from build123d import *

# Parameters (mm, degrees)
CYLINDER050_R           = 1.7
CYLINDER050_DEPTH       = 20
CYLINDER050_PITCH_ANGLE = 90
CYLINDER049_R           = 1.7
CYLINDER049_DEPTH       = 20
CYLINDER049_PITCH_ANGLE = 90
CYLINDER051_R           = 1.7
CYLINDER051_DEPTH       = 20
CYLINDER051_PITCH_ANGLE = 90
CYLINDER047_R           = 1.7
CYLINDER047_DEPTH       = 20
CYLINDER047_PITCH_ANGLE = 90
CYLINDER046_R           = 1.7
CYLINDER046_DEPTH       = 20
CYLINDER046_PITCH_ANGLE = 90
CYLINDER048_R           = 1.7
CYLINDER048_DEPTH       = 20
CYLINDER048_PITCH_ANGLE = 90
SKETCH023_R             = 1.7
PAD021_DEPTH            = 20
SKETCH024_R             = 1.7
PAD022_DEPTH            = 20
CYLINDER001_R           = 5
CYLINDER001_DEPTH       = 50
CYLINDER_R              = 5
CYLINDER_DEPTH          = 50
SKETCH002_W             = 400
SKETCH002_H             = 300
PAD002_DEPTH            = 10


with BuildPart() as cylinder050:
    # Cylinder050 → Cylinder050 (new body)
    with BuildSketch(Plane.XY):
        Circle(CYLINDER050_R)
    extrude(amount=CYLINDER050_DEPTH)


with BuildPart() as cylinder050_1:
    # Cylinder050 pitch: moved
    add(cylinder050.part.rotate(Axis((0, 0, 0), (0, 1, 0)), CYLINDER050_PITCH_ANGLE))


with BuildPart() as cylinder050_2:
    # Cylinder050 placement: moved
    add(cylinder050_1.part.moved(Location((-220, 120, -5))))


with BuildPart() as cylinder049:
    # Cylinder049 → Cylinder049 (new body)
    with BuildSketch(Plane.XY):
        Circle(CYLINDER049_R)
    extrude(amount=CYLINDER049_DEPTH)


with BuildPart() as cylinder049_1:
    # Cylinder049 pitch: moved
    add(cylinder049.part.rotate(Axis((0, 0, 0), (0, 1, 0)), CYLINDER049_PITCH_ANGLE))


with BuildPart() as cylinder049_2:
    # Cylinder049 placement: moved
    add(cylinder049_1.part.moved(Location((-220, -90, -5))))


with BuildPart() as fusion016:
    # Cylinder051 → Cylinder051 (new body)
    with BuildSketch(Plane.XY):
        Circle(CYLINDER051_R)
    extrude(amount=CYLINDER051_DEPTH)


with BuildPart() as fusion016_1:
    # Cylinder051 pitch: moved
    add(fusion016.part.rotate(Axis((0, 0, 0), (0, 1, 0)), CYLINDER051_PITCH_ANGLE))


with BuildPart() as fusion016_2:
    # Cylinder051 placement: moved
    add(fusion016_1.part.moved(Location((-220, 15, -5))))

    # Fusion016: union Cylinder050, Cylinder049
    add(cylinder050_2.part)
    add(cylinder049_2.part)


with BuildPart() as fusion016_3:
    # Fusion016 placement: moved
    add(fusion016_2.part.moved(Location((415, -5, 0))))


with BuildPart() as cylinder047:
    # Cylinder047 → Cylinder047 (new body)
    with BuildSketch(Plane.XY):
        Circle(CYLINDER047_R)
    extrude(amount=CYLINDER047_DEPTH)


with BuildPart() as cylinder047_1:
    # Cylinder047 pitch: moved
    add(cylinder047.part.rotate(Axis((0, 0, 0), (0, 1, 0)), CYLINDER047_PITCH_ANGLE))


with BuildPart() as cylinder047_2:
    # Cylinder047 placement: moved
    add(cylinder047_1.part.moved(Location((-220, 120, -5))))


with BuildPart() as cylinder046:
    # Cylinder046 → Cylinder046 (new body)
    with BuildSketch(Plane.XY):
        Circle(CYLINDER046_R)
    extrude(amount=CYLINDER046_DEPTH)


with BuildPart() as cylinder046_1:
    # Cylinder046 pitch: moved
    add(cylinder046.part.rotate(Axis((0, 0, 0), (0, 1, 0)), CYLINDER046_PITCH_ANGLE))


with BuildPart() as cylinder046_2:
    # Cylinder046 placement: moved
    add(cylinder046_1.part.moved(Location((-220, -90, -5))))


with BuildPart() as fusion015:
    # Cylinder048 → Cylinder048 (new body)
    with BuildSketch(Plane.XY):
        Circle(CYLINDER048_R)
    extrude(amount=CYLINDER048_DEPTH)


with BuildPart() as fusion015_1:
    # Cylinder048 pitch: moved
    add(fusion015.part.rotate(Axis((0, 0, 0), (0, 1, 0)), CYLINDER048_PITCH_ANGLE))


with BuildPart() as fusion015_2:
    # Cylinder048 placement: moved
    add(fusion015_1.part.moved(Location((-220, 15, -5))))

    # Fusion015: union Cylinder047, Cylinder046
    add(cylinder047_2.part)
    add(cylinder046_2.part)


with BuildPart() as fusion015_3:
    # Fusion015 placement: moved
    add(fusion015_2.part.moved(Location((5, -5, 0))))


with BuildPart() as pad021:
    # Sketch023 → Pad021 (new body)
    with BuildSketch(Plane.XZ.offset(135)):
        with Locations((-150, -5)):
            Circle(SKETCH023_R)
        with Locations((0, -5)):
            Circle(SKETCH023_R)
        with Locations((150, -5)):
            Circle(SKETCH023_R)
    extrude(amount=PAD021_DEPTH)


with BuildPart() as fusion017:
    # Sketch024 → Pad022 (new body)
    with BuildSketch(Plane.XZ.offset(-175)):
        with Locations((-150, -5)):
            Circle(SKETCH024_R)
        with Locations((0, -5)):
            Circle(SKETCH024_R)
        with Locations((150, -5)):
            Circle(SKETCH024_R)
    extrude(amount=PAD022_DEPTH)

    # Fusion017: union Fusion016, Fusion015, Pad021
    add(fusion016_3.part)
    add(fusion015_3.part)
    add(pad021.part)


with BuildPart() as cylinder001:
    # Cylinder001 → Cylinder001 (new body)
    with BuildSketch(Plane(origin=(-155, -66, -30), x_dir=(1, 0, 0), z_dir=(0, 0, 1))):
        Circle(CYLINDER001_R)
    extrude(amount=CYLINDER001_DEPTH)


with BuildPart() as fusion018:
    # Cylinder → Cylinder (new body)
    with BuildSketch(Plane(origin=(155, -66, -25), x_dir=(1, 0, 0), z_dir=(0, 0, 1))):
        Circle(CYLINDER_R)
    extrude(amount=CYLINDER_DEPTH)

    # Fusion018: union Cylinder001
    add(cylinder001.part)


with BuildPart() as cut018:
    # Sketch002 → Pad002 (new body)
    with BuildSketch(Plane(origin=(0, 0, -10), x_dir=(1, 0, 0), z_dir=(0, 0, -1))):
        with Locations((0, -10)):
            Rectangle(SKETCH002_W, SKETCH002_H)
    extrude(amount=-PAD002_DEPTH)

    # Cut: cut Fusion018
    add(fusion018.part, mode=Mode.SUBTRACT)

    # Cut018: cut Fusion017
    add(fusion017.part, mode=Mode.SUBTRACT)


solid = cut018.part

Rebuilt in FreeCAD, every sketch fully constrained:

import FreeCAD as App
import Part
import Sketcher


def add_polygon(sketch, points):
    """Adds a closed chain of lines whose ends are joined by coincident constraints."""
    first, n = sketch.GeometryCount, len(points)
    for a, b in zip(points, points[1:] + points[:1]):
        sketch.addGeometry(Part.LineSegment(App.Vector(*a, 0), App.Vector(*b, 0)), False)
    for i in range(n):
        sketch.addConstraint(Sketcher.Constraint("Coincident", first + i, 2, first + (i + 1) % n, 1))

doc = App.newDocument("Part")
params = doc.addObject("Spreadsheet::Sheet", "Params")
for row, (alias, value) in enumerate([
    ("sketch1_diameter", "3.4 mm"),
    ("pad1_length", "20 mm"),
    ("sketch2_diameter", "3.4 mm"),
    ("pad2_length", "20 mm"),
    ("sketch3_diameter", "3.4 mm"),
    ("pad3_length", "20 mm"),
    ("sketch4_diameter", "3.4 mm"),
    ("pad4_length", "20 mm"),
    ("sketch5_diameter", "3.4 mm"),
    ("pad5_length", "20 mm"),
    ("sketch6_diameter", "3.4 mm"),
    ("pad6_length", "20 mm"),
    ("sketch7_diameter", "3.4 mm"),
    ("pad7_length", "20 mm"),
    ("sketch8_diameter", "3.4 mm"),
    ("pad8_length", "20 mm"),
    ("sketch9_diameter", "10 mm"),
    ("pad9_length", "50 mm"),
    ("sketch10_diameter", "10 mm"),
    ("pad10_length", "50 mm"),
    ("sketch11_width", "400 mm"),
    ("sketch11_height", "300 mm"),
    ("pad11_length", "10 mm"),
], start=1):
    params.set(f"A{row}", alias)
    params.set(f"B{row}", "=" + value)
    params.setAlias(f"B{row}", alias)

body = doc.addObject("PartDesign::Body", "Body")

# Sketch on XY plane
sketch1 = doc.addObject("Sketcher::SketchObject", "Sketch")
body.addObject(sketch1)
sketch1.AttachmentSupport = (doc.XY_Plane, [""])
sketch1.MapMode = "FlatFace"
sketch1.addGeometry(Part.Circle(App.Vector(0, 0, 0), App.Vector(0, 0, 1), 1.7), False)
sketch1.addConstraint([
    Sketcher.Constraint("Coincident", 0, 3, -1, 1),
    Sketcher.Constraint("Diameter", 0, 3.4),
])
sketch1.setExpression("Constraints[1]", "Params.sketch1_diameter")
pad1 = doc.addObject("PartDesign::Pad", "Pad")
body.addObject(pad1)
pad1.Profile = sketch1
pad1.setExpression("Length", "Params.pad1_length")
body2 = doc.addObject("PartDesign::Body", "Body001")
doc.recompute()

body.Placement = App.Placement(App.Vector(0, 0, 0), App.Rotation(App.Vector(0, 1, 0), 90))
boolean = doc.addObject("PartDesign::Boolean", "Boolean")
body2.addObject(boolean)
boolean.Type = "Fuse"
boolean.addObjects([body])
body3 = doc.addObject("PartDesign::Body", "Body002")
doc.recompute()

body2.Placement = App.Placement(App.Vector(-220, 120, -5), App.Rotation(App.Vector(0, 0, 1), 0))
boolean2 = doc.addObject("PartDesign::Boolean", "Boolean001")
body3.addObject(boolean2)
boolean2.Type = "Fuse"
boolean2.addObjects([body2])
body4 = doc.addObject("PartDesign::Body", "Body003")

# Sketch on XY plane
sketch2 = doc.addObject("Sketcher::SketchObject", "Sketch001")
body4.addObject(sketch2)
sketch2.AttachmentSupport = (doc.getObject("XY_Plane003"), [""])
sketch2.MapMode = "FlatFace"
sketch2.addGeometry(Part.Circle(App.Vector(0, 0, 0), App.Vector(0, 0, 1), 1.7), False)
sketch2.addConstraint([
    Sketcher.Constraint("Coincident", 0, 3, -1, 1),
    Sketcher.Constraint("Diameter", 0, 3.4),
])
sketch2.setExpression("Constraints[1]", "Params.sketch2_diameter")
pad2 = doc.addObject("PartDesign::Pad", "Pad001")
body4.addObject(pad2)
pad2.Profile = sketch2
pad2.setExpression("Length", "Params.pad2_length")
body5 = doc.addObject("PartDesign::Body", "Body004")
doc.recompute()

body4.Placement = App.Placement(App.Vector(0, 0, 0), App.Rotation(App.Vector(0, 1, 0), 90))
boolean3 = doc.addObject("PartDesign::Boolean", "Boolean002")
body5.addObject(boolean3)
boolean3.Type = "Fuse"
boolean3.addObjects([body4])
body6 = doc.addObject("PartDesign::Body", "Body005")
doc.recompute()

body5.Placement = App.Placement(App.Vector(-220, -90, -5), App.Rotation(App.Vector(0, 0, 1), 0))
boolean4 = doc.addObject("PartDesign::Boolean", "Boolean003")
body6.addObject(boolean4)
boolean4.Type = "Fuse"
boolean4.addObjects([body5])
body7 = doc.addObject("PartDesign::Body", "Body006")

# Sketch on XY plane
sketch3 = doc.addObject("Sketcher::SketchObject", "Sketch002")
body7.addObject(sketch3)
sketch3.AttachmentSupport = (doc.getObject("XY_Plane006"), [""])
sketch3.MapMode = "FlatFace"
sketch3.addGeometry(Part.Circle(App.Vector(0, 0, 0), App.Vector(0, 0, 1), 1.7), False)
sketch3.addConstraint([
    Sketcher.Constraint("Coincident", 0, 3, -1, 1),
    Sketcher.Constraint("Diameter", 0, 3.4),
])
sketch3.setExpression("Constraints[1]", "Params.sketch3_diameter")
pad3 = doc.addObject("PartDesign::Pad", "Pad002")
body7.addObject(pad3)
pad3.Profile = sketch3
pad3.setExpression("Length", "Params.pad3_length")
body8 = doc.addObject("PartDesign::Body", "Body007")
doc.recompute()

body7.Placement = App.Placement(App.Vector(0, 0, 0), App.Rotation(App.Vector(0, 1, 0), 90))
boolean5 = doc.addObject("PartDesign::Boolean", "Boolean004")
body8.addObject(boolean5)
boolean5.Type = "Fuse"
boolean5.addObjects([body7])
body9 = doc.addObject("PartDesign::Body", "Body008")
body9.AllowCompound = True
doc.recompute()

body8.Placement = App.Placement(App.Vector(-220, 15, -5), App.Rotation(App.Vector(0, 0, 1), 0))
boolean6 = doc.addObject("PartDesign::Boolean", "Boolean005")
body9.addObject(boolean6)
boolean6.Type = "Fuse"
boolean6.addObjects([body8])
doc.recompute()

boolean7 = doc.addObject("PartDesign::Boolean", "Boolean006")
body9.addObject(boolean7)
boolean7.Type = "Fuse"
boolean7.addObjects([body3])
doc.recompute()

boolean8 = doc.addObject("PartDesign::Boolean", "Boolean007")
body9.addObject(boolean8)
boolean8.Type = "Fuse"
boolean8.addObjects([body6])
body10 = doc.addObject("PartDesign::Body", "Body009")
body10.AllowCompound = True
doc.recompute()

body9.Placement = App.Placement(App.Vector(415, -5, 0), App.Rotation(App.Vector(0, 0, 1), 0))
boolean9 = doc.addObject("PartDesign::Boolean", "Boolean008")
body10.addObject(boolean9)
boolean9.Type = "Fuse"
boolean9.addObjects([body9])
body11 = doc.addObject("PartDesign::Body", "Body010")

# Sketch on XY plane
sketch4 = doc.addObject("Sketcher::SketchObject", "Sketch003")
body11.addObject(sketch4)
sketch4.AttachmentSupport = (doc.getObject("XY_Plane010"), [""])
sketch4.MapMode = "FlatFace"
sketch4.addGeometry(Part.Circle(App.Vector(0, 0, 0), App.Vector(0, 0, 1), 1.7), False)
sketch4.addConstraint([
    Sketcher.Constraint("Coincident", 0, 3, -1, 1),
    Sketcher.Constraint("Diameter", 0, 3.4),
])
sketch4.setExpression("Constraints[1]", "Params.sketch4_diameter")
pad4 = doc.addObject("PartDesign::Pad", "Pad003")
body11.addObject(pad4)
pad4.Profile = sketch4
pad4.setExpression("Length", "Params.pad4_length")
body12 = doc.addObject("PartDesign::Body", "Body011")
doc.recompute()

body11.Placement = App.Placement(App.Vector(0, 0, 0), App.Rotation(App.Vector(0, 1, 0), 90))
boolean10 = doc.addObject("PartDesign::Boolean", "Boolean009")
body12.addObject(boolean10)
boolean10.Type = "Fuse"
boolean10.addObjects([body11])
body13 = doc.addObject("PartDesign::Body", "Body012")
doc.recompute()

body12.Placement = App.Placement(App.Vector(-220, 120, -5), App.Rotation(App.Vector(0, 0, 1), 0))
boolean11 = doc.addObject("PartDesign::Boolean", "Boolean010")
body13.addObject(boolean11)
boolean11.Type = "Fuse"
boolean11.addObjects([body12])
body14 = doc.addObject("PartDesign::Body", "Body013")

# Sketch on XY plane
sketch5 = doc.addObject("Sketcher::SketchObject", "Sketch004")
body14.addObject(sketch5)
sketch5.AttachmentSupport = (doc.getObject("XY_Plane013"), [""])
sketch5.MapMode = "FlatFace"
sketch5.addGeometry(Part.Circle(App.Vector(0, 0, 0), App.Vector(0, 0, 1), 1.7), False)
sketch5.addConstraint([
    Sketcher.Constraint("Coincident", 0, 3, -1, 1),
    Sketcher.Constraint("Diameter", 0, 3.4),
])
sketch5.setExpression("Constraints[1]", "Params.sketch5_diameter")
pad5 = doc.addObject("PartDesign::Pad", "Pad004")
body14.addObject(pad5)
pad5.Profile = sketch5
pad5.setExpression("Length", "Params.pad5_length")
body15 = doc.addObject("PartDesign::Body", "Body014")
doc.recompute()

body14.Placement = App.Placement(App.Vector(0, 0, 0), App.Rotation(App.Vector(0, 1, 0), 90))
boolean12 = doc.addObject("PartDesign::Boolean", "Boolean011")
body15.addObject(boolean12)
boolean12.Type = "Fuse"
boolean12.addObjects([body14])
body16 = doc.addObject("PartDesign::Body", "Body015")
doc.recompute()

body15.Placement = App.Placement(App.Vector(-220, -90, -5), App.Rotation(App.Vector(0, 0, 1), 0))
boolean13 = doc.addObject("PartDesign::Boolean", "Boolean012")
body16.addObject(boolean13)
boolean13.Type = "Fuse"
boolean13.addObjects([body15])
body17 = doc.addObject("PartDesign::Body", "Body016")

# Sketch on XY plane
sketch6 = doc.addObject("Sketcher::SketchObject", "Sketch005")
body17.addObject(sketch6)
sketch6.AttachmentSupport = (doc.getObject("XY_Plane016"), [""])
sketch6.MapMode = "FlatFace"
sketch6.addGeometry(Part.Circle(App.Vector(0, 0, 0), App.Vector(0, 0, 1), 1.7), False)
sketch6.addConstraint([
    Sketcher.Constraint("Coincident", 0, 3, -1, 1),
    Sketcher.Constraint("Diameter", 0, 3.4),
])
sketch6.setExpression("Constraints[1]", "Params.sketch6_diameter")
pad6 = doc.addObject("PartDesign::Pad", "Pad005")
body17.addObject(pad6)
pad6.Profile = sketch6
pad6.setExpression("Length", "Params.pad6_length")
body18 = doc.addObject("PartDesign::Body", "Body017")
doc.recompute()

body17.Placement = App.Placement(App.Vector(0, 0, 0), App.Rotation(App.Vector(0, 1, 0), 90))
boolean14 = doc.addObject("PartDesign::Boolean", "Boolean013")
body18.addObject(boolean14)
boolean14.Type = "Fuse"
boolean14.addObjects([body17])
body19 = doc.addObject("PartDesign::Body", "Body018")
body19.AllowCompound = True
doc.recompute()

body18.Placement = App.Placement(App.Vector(-220, 15, -5), App.Rotation(App.Vector(0, 0, 1), 0))
boolean15 = doc.addObject("PartDesign::Boolean", "Boolean014")
body19.addObject(boolean15)
boolean15.Type = "Fuse"
boolean15.addObjects([body18])
doc.recompute()

boolean16 = doc.addObject("PartDesign::Boolean", "Boolean015")
body19.addObject(boolean16)
boolean16.Type = "Fuse"
boolean16.addObjects([body13])
doc.recompute()

boolean17 = doc.addObject("PartDesign::Boolean", "Boolean016")
body19.addObject(boolean17)
boolean17.Type = "Fuse"
boolean17.addObjects([body16])
body20 = doc.addObject("PartDesign::Body", "Body019")
body20.AllowCompound = True
doc.recompute()

body19.Placement = App.Placement(App.Vector(5, -5, 0), App.Rotation(App.Vector(0, 0, 1), 0))
boolean18 = doc.addObject("PartDesign::Boolean", "Boolean017")
body20.addObject(boolean18)
boolean18.Type = "Fuse"
boolean18.addObjects([body19])
body21 = doc.addObject("PartDesign::Body", "Body020")
body21.AllowCompound = True

# Sketch on XZ plane
sketch7 = doc.addObject("Sketcher::SketchObject", "Sketch006")
body21.addObject(sketch7)
sketch7.AttachmentSupport = (doc.getObject("XZ_Plane020"), [""])
sketch7.MapMode = "FlatFace"
sketch7.AttachmentOffset = App.Placement(App.Vector(0, 0, 135), App.Rotation())
sketch7.addGeometry([
    Part.Circle(App.Vector(-150, -5, 0), App.Vector(0, 0, 1), 1.7),
    Part.Circle(App.Vector(0, -5, 0), App.Vector(0, 0, 1), 1.7),
    Part.Circle(App.Vector(150, -5, 0), App.Vector(0, 0, 1), 1.7),
], False)
sketch7.addConstraint([
    Sketcher.Constraint("Equal", 0, 1),
    Sketcher.Constraint("Equal", 1, 2),
    Sketcher.Constraint("Symmetric", 0, 3, 2, 3, -2),
    Sketcher.Constraint("PointOnObject", 1, 3, -2),
    Sketcher.Constraint("Horizontal", 0, 3, 1, 3),
    Sketcher.Constraint("Diameter", 0, 3.4),
    Sketcher.Constraint("DistanceX", 0, 3, -1, 1, 150.0),
    Sketcher.Constraint("DistanceY", 0, 3, -1, 1, 5.0),
])
sketch7.setExpression("Constraints[5]", "Params.sketch7_diameter")
pad7 = doc.addObject("PartDesign::Pad", "Pad006")
body21.addObject(pad7)
pad7.Profile = sketch7
pad7.setExpression("Length", "Params.pad7_length")
body22 = doc.addObject("PartDesign::Body", "Body021")
body22.AllowCompound = True

# Sketch on XZ plane
sketch8 = doc.addObject("Sketcher::SketchObject", "Sketch007")
body22.addObject(sketch8)
sketch8.AttachmentSupport = (doc.getObject("XZ_Plane021"), [""])
sketch8.MapMode = "FlatFace"
sketch8.AttachmentOffset = App.Placement(App.Vector(0, 0, -175), App.Rotation())
sketch8.addGeometry([
    Part.Circle(App.Vector(-150, -5, 0), App.Vector(0, 0, 1), 1.7),
    Part.Circle(App.Vector(0, -5, 0), App.Vector(0, 0, 1), 1.7),
    Part.Circle(App.Vector(150, -5, 0), App.Vector(0, 0, 1), 1.7),
], False)
sketch8.addConstraint([
    Sketcher.Constraint("Equal", 0, 1),
    Sketcher.Constraint("Equal", 1, 2),
    Sketcher.Constraint("Symmetric", 0, 3, 2, 3, -2),
    Sketcher.Constraint("PointOnObject", 1, 3, -2),
    Sketcher.Constraint("Horizontal", 0, 3, 1, 3),
    Sketcher.Constraint("Diameter", 0, 3.4),
    Sketcher.Constraint("DistanceX", 0, 3, -1, 1, 150.0),
    Sketcher.Constraint("DistanceY", 0, 3, -1, 1, 5.0),
])
sketch8.setExpression("Constraints[5]", "Params.sketch8_diameter")
pad8 = doc.addObject("PartDesign::Pad", "Pad007")
body22.addObject(pad8)
pad8.Profile = sketch8
pad8.setExpression("Length", "Params.pad8_length")
doc.recompute()

boolean19 = doc.addObject("PartDesign::Boolean", "Boolean018")
body22.addObject(boolean19)
boolean19.Type = "Fuse"
boolean19.addObjects([body10])
doc.recompute()

boolean20 = doc.addObject("PartDesign::Boolean", "Boolean019")
body22.addObject(boolean20)
boolean20.Type = "Fuse"
boolean20.addObjects([body20])
doc.recompute()

boolean21 = doc.addObject("PartDesign::Boolean", "Boolean020")
body22.addObject(boolean21)
boolean21.Type = "Fuse"
boolean21.addObjects([body21])
body23 = doc.addObject("PartDesign::Body", "Body022")

# Sketch on XY plane
sketch9 = doc.addObject("Sketcher::SketchObject", "Sketch008")
body23.addObject(sketch9)
sketch9.AttachmentSupport = (doc.getObject("XY_Plane022"), [""])
sketch9.MapMode = "FlatFace"
sketch9.AttachmentOffset = App.Placement(App.Vector(0, 0, -30), App.Rotation())
sketch9.addGeometry(Part.Circle(App.Vector(-155, -66, 0), App.Vector(0, 0, 1), 5), False)
sketch9.addConstraint([
    Sketcher.Constraint("Diameter", 0, 10.0),
    Sketcher.Constraint("DistanceX", 0, 3, -1, 1, 155.0),
    Sketcher.Constraint("DistanceY", 0, 3, -1, 1, 66.0),
])
sketch9.setExpression("Constraints[0]", "Params.sketch9_diameter")
pad9 = doc.addObject("PartDesign::Pad", "Pad008")
body23.addObject(pad9)
pad9.Profile = sketch9
pad9.setExpression("Length", "Params.pad9_length")
body24 = doc.addObject("PartDesign::Body", "Body023")
body24.AllowCompound = True

# Sketch on XY plane
sketch10 = doc.addObject("Sketcher::SketchObject", "Sketch009")
body24.addObject(sketch10)
sketch10.AttachmentSupport = (doc.getObject("XY_Plane023"), [""])
sketch10.MapMode = "FlatFace"
sketch10.AttachmentOffset = App.Placement(App.Vector(0, 0, -25), App.Rotation())
sketch10.addGeometry(Part.Circle(App.Vector(155, -66, 0), App.Vector(0, 0, 1), 5), False)
sketch10.addConstraint([
    Sketcher.Constraint("Diameter", 0, 10.0),
    Sketcher.Constraint("DistanceX", -1, 1, 0, 3, 155.0),
    Sketcher.Constraint("DistanceY", 0, 3, -1, 1, 66.0),
])
sketch10.setExpression("Constraints[0]", "Params.sketch10_diameter")
pad10 = doc.addObject("PartDesign::Pad", "Pad009")
body24.addObject(pad10)
pad10.Profile = sketch10
pad10.setExpression("Length", "Params.pad10_length")
doc.recompute()

boolean22 = doc.addObject("PartDesign::Boolean", "Boolean021")
body24.addObject(boolean22)
boolean22.Type = "Fuse"
boolean22.addObjects([body23])
body25 = doc.addObject("PartDesign::Body", "Body024")

# Sketch on XY plane
sketch11 = doc.addObject("Sketcher::SketchObject", "Sketch010")
body25.addObject(sketch11)
sketch11.AttachmentSupport = (doc.getObject("XY_Plane024"), [""])
sketch11.MapMode = "FlatFace"
sketch11.AttachmentOffset = App.Placement(App.Vector(0, 0, -10), App.Rotation())
add_polygon(sketch11, [(-200, -140), (-200, 160), (200, 160), (200, -140)])  # lines 0-3
sketch11.addConstraint([
    Sketcher.Constraint("Vertical", 0),
    Sketcher.Constraint("Horizontal", 1),
    Sketcher.Constraint("Vertical", 2),
    Sketcher.Constraint("Horizontal", 3),
    Sketcher.Constraint("DistanceX", 1, 1, 1, 2, 400.0),
    Sketcher.Constraint("DistanceY", 0, 1, 0, 2, 300.0),
    Sketcher.Constraint("DistanceX", 0, 2, -1, 1, 200.0),
    Sketcher.Constraint("DistanceY", -1, 1, 0, 2, 160.0),
])
sketch11.setExpression("Constraints[8]", "Params.sketch11_width")
sketch11.setExpression("Constraints[9]", "Params.sketch11_height")
pad11 = doc.addObject("PartDesign::Pad", "Pad010")
body25.addObject(pad11)
pad11.Profile = sketch11
pad11.setExpression("Length", "Params.pad11_length")
doc.recompute()

boolean23 = doc.addObject("PartDesign::Boolean", "Boolean022")
body25.addObject(boolean23)
boolean23.Type = "Cut"
boolean23.addObjects([body24])
doc.recompute()

boolean24 = doc.addObject("PartDesign::Boolean", "Boolean023")
body25.addObject(boolean24)
boolean24.Type = "Cut"
boolean24.addObjects([body22])

doc.recompute()
